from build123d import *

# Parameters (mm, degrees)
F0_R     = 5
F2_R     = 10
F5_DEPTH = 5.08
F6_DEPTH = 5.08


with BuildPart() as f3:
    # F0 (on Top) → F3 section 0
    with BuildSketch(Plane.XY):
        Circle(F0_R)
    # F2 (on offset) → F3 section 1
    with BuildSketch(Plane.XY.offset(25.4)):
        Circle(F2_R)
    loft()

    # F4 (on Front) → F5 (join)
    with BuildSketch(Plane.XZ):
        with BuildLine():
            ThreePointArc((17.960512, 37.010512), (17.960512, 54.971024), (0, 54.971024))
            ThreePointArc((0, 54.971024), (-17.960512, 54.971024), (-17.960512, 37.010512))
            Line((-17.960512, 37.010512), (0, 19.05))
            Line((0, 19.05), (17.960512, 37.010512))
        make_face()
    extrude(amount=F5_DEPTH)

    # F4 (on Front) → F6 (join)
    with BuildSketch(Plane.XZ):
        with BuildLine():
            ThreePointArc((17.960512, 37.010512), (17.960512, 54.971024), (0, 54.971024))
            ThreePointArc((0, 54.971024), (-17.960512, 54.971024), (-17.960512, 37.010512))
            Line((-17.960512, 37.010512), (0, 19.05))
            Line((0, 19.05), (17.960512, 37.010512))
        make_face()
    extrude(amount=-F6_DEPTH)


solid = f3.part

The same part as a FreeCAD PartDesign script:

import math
import FreeCAD as App
import Part
import Sketcher
from FreeCAD import Vector
Q = App.Units.Quantity

doc = App.newDocument("Part")
body = doc.addObject("PartDesign::Body", "Body")

sketch1 = body.newObject("Sketcher::SketchObject", "Sketch")
sketch1.AttachmentSupport = (doc.getObject("XY_Plane"), [""])
sketch1.MapMode = "FlatFace"
sketch1.addGeometry(Part.Circle(Vector(0, 0, 0), Vector(0, 0, 1), 5), False)
sketch1.addConstraint(Sketcher.Constraint("Coincident", 0, 3, -1, 1))
sketch1.addConstraint(Sketcher.Constraint("Diameter", 0, Q("10 mm")))

sketch2 = body.newObject("Sketcher::SketchObject", "Sketch001")
sketch2.AttachmentSupport = (doc.getObject("XY_Plane"), [""])
sketch2.MapMode = "FlatFace"
sketch2.AttachmentOffset = App.Placement(Vector(0, 0, 25.4), App.Rotation())
sketch2.addGeometry(Part.Circle(Vector(0, 0, 0), Vector(0, 0, 1), 10), False)
sketch2.addConstraint(Sketcher.Constraint("Coincident", 0, 3, -1, 1))
sketch2.addConstraint(Sketcher.Constraint("Diameter", 0, Q("20 mm")))

additiveloft = body.newObject("PartDesign::AdditiveLoft", "AdditiveLoft")
additiveloft.Profile = sketch1
additiveloft.Sections = [sketch2]

sketch3 = body.newObject("Sketcher::SketchObject", "Sketch002")
sketch3.AttachmentSupport = (doc.getObject("XZ_Plane"), [""])
sketch3.MapMode = "FlatFace"
sketch3.addGeometry(Part.ArcOfCircle(Part.Circle(Vector(9, 46, 0), Vector(0, 0, 1), 13), math.radians(-45), math.radians(135)), False)
sketch3.addGeometry(Part.ArcOfCircle(Part.Circle(Vector(-9, 46, 0), Vector(0, 0, 1), 13), math.radians(45), math.radians(225)), False)
sketch3.addGeometry(Part.LineSegment(Vector(-18, 37, 0), Vector(0, 19, 0)), False)
sketch3.addGeometry(Part.LineSegment(Vector(0, 19, 0), Vector(18, 37, 0)), False)
sketch3.addConstraint(Sketcher.Constraint("Coincident", 0, 2, 1, 1))
sketch3.addConstraint(Sketcher.Constraint("Tangent", 1, 2, 2, 1))
sketch3.addConstraint(Sketcher.Constraint("Coincident", 2, 2, 3, 1))
sketch3.addConstraint(Sketcher.Constraint("Tangent", 3, 2, 0, 1))
sketch3.addConstraint(Sketcher.Constraint("Equal", 0, 1))
sketch3.addConstraint(Sketcher.Constraint("Symmetric", 0, 3, 1, 3, -2))
sketch3.addConstraint(Sketcher.Constraint("PointOnObject", 2, 2, -2))
sketch3.addConstraint(Sketcher.Constraint("Perpendicular", 2, 3))
sketch3.addConstraint(Sketcher.Constraint("Radius", 0, Q("12.7 mm")))
sketch3.addConstraint(Sketcher.Constraint("Distance", 2, Q("25.4 mm")))
sketch3.addConstraint(Sketcher.Constraint("DistanceY", -1, 1, 2, 2, Q("19.05 mm")))
pad1 = body.newObject("PartDesign::Pad", "Pad")
pad1.Profile = sketch3
pad1.Length = 5.08

sketch4 = body.newObject("Sketcher::SketchObject", "Sketch003")
sketch4.AttachmentSupport = (doc.getObject("XZ_Plane"), [""])
sketch4.MapMode = "FlatFace"
sketch4.addGeometry(Part.ArcOfCircle(Part.Circle(Vector(9, 46, 0), Vector(0, 0, 1), 13), math.radians(-45), math.radians(135)), False)
sketch4.addGeometry(Part.ArcOfCircle(Part.Circle(Vector(-9, 46, 0), Vector(0, 0, 1), 13), math.radians(45), math.radians(225)), False)
sketch4.addGeometry(Part.LineSegment(Vector(-18, 37, 0), Vector(0, 19, 0)), False)
sketch4.addGeometry(Part.LineSegment(Vector(0, 19, 0), Vector(18, 37, 0)), False)
sketch4.addConstraint(Sketcher.Constraint("Coincident", 0, 2, 1, 1))
sketch4.addConstraint(Sketcher.Constraint("Tangent", 1, 2, 2, 1))
sketch4.addConstraint(Sketcher.Constraint("Coincident", 2, 2, 3, 1))
sketch4.addConstraint(Sketcher.Constraint("Tangent", 3, 2, 0, 1))
sketch4.addConstraint(Sketcher.Constraint("Equal", 0, 1))
sketch4.addConstraint(Sketcher.Constraint("Symmetric", 0, 3, 1, 3, -2))
sketch4.addConstraint(Sketcher.Constraint("PointOnObject", 2, 2, -2))
sketch4.addConstraint(Sketcher.Constraint("Perpendicular", 2, 3))
sketch4.addConstraint(Sketcher.Constraint("Radius", 0, Q("12.7 mm")))
sketch4.addConstraint(Sketcher.Constraint("Distance", 2, Q("25.4 mm")))
sketch4.addConstraint(Sketcher.Constraint("DistanceY", -1, 1, 2, 2, Q("19.05 mm")))
pad2 = body.newObject("PartDesign::Pad", "Pad001")
pad2.Profile = sketch4
pad2.Length = 5.08
pad2.Reversed = True

doc.recompute()
